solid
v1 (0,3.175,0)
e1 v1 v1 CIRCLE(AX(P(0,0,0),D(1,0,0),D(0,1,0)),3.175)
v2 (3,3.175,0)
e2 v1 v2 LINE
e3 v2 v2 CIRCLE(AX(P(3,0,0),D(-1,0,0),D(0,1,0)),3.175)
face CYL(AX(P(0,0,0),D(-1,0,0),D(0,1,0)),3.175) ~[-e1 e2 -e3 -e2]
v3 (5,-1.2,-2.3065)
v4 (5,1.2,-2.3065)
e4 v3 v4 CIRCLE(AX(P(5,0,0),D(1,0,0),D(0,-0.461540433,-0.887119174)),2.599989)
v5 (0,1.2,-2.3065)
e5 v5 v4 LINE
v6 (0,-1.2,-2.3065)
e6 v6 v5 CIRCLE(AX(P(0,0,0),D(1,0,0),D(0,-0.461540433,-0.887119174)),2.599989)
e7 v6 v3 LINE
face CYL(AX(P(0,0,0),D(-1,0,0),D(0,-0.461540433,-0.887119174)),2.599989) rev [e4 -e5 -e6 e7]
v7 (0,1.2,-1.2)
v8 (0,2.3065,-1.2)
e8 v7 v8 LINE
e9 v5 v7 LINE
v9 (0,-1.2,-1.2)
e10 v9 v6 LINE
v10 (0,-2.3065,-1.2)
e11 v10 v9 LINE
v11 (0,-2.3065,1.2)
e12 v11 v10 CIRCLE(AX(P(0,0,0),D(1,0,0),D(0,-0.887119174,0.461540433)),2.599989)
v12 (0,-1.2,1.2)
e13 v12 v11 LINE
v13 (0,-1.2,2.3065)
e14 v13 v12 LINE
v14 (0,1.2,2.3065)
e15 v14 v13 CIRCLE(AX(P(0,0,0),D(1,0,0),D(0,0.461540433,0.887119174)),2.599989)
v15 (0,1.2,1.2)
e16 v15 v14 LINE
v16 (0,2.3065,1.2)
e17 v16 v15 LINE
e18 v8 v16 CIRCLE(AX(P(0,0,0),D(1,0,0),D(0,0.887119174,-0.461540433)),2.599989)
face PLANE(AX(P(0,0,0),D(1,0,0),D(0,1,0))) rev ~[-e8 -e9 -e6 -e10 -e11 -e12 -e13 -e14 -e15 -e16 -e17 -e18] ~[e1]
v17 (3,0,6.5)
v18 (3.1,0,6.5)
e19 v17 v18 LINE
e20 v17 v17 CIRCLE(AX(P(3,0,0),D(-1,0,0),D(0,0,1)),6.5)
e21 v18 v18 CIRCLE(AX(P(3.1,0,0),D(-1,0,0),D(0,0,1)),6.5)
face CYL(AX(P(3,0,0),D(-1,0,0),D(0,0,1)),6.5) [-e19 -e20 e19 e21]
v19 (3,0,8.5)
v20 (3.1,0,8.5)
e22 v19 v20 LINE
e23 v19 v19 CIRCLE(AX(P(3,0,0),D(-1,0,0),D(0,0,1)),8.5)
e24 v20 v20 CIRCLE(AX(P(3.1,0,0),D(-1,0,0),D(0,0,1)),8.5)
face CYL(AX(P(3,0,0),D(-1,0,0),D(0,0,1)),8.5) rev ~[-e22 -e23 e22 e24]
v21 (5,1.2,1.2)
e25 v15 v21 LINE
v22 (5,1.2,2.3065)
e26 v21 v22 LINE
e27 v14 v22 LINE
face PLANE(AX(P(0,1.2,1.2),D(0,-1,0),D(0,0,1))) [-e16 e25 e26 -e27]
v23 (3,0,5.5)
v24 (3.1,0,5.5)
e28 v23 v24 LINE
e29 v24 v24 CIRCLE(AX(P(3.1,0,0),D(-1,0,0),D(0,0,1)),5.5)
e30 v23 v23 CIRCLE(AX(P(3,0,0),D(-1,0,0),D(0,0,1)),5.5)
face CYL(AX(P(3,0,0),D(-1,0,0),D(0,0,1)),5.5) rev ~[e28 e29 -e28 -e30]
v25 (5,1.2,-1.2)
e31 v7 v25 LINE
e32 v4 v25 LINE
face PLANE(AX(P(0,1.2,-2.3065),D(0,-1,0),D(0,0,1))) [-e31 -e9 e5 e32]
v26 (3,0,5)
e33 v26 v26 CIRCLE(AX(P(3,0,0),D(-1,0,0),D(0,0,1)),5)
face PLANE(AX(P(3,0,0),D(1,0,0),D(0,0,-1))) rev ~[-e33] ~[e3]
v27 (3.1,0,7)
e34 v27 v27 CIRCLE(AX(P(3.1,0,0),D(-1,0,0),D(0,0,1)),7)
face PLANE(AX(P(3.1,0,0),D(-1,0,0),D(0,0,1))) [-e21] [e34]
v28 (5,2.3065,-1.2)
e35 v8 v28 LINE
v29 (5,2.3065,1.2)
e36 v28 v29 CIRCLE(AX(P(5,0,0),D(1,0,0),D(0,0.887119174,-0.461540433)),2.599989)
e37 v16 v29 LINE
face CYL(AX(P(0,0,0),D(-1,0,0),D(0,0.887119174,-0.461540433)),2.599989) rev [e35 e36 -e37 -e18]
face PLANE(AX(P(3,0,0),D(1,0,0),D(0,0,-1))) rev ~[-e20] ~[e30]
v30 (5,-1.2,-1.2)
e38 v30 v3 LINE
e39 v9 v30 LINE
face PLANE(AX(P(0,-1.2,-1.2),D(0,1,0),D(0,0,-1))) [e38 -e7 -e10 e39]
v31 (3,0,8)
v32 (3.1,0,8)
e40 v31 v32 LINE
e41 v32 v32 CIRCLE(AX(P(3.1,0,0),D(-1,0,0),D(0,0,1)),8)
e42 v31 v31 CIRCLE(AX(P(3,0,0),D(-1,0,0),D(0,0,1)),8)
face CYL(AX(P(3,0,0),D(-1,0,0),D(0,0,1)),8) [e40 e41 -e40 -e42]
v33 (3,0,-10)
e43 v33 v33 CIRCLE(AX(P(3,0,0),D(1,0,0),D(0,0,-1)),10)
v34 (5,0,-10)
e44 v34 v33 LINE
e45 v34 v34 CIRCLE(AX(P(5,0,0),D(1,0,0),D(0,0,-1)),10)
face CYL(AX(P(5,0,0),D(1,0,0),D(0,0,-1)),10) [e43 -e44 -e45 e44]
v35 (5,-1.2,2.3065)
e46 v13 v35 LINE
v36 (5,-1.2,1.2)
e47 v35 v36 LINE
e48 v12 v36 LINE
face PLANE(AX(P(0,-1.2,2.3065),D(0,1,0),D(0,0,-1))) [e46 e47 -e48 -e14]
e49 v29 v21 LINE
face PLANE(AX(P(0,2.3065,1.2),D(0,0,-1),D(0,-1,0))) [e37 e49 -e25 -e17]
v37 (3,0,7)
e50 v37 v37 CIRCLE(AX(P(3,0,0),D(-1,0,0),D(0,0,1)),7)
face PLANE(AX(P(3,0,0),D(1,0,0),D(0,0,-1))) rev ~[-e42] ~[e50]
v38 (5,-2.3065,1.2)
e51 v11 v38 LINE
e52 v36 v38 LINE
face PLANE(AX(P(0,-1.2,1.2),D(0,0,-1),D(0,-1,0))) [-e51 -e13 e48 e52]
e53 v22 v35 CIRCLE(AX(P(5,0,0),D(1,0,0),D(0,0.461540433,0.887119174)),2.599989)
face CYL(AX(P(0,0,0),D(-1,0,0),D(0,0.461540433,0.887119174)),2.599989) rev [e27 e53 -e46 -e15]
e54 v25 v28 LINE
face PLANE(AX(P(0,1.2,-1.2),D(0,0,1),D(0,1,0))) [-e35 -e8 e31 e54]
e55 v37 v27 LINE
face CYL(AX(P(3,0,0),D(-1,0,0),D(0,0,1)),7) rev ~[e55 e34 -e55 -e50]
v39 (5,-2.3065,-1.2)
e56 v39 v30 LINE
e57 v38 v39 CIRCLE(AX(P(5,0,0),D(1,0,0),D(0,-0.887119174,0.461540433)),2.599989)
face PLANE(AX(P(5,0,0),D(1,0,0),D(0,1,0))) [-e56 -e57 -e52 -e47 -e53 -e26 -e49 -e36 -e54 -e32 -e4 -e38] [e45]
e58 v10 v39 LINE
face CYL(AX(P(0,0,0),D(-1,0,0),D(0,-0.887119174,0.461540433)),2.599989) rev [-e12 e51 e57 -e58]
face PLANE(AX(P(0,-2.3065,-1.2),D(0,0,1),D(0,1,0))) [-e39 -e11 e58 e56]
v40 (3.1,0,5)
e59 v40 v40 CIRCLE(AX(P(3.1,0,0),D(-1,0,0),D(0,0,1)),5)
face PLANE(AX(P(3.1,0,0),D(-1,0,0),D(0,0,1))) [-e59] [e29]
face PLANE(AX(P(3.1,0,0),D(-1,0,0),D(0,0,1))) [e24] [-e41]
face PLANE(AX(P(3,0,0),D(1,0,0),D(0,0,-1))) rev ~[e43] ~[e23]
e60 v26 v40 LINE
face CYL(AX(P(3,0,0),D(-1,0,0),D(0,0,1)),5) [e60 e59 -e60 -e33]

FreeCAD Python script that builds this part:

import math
import FreeCAD as App
import Part
import Sketcher

doc = App.newDocument("Part")
params = doc.addObject("Spreadsheet::Sheet", "Params")
for row, (alias, value) in enumerate([
    ("sketch1_diameter", "6.35 mm"),
    ("sketch1_radius", "2.6 mm"),
    ("pad1_length", "5 mm"),
    ("sketch2_diameter", "20 mm"),
    ("sketch2_diameter2", "5.2 mm"),
    ("pad2_length", "2 mm"),
    ("sketch3_diameter", "11 mm"),
    ("sketch3_diameter2", "10 mm"),
    ("sketch3_diameter3", "14 mm"),
    ("sketch3_diameter4", "13 mm"),
    ("sketch3_diameter5", "17 mm"),
    ("pocket1_length", "0.1 mm"),
], start=1):
    params.set(f"A{row}", alias)
    params.set(f"B{row}", "=" + value)
    params.setAlias(f"B{row}", alias)

body = doc.addObject("PartDesign::Body", "Body")

# Sketch on YZ plane
sketch1 = body.newObject("Sketcher::SketchObject", "Sketch")
sketch1.AttachmentSupport = (doc.getObject("YZ_Plane"), [""])
sketch1.MapMode = "FlatFace"
sketch1.addGeometry(Part.Circle(App.Vector(0, 0, 0), App.Vector(0, 0, 1), 3.2), False)
sketch1.addGeometry(Part.ArcOfCircle(Part.Circle(App.Vector(0, 0, 0), App.Vector(0, 0, 1), 2.6), math.radians(63), math.radians(117)), False)
sketch1.addGeometry(Part.LineSegment(App.Vector(1.2, 2.3, 0), App.Vector(1.2, 1.2, 0)), False)
sketch1.addGeometry(Part.LineSegment(App.Vector(1.2, 1.2, 0), App.Vector(2.3, 1.2, 0)), False)
sketch1.addGeometry(Part.ArcOfCircle(Part.Circle(App.Vector(0, 0, 0), App.Vector(0, 0, 1), 2.6), math.radians(-27), math.radians(27)), False)
sketch1.addGeometry(Part.LineSegment(App.Vector(2.3, -1.2, 0), App.Vector(1.2, -1.2, 0)), False)
sketch1.addGeometry(Part.LineSegment(App.Vector(1.2, -1.2, 0), App.Vector(1.2, -2.3, 0)), False)
sketch1.addGeometry(Part.ArcOfCircle(Part.Circle(App.Vector(0, 0, 0), App.Vector(0, 0, 1), 2.6), math.radians(-117), math.radians(-63)), False)
sketch1.addGeometry(Part.LineSegment(App.Vector(-1.2, -2.3, 0), App.Vector(-1.2, -1.2, 0)), False)
sketch1.addGeometry(Part.LineSegment(App.Vector(-1.2, -1.2, 0), App.Vector(-2.3, -1.2, 0)), False)
sketch1.addGeometry(Part.ArcOfCircle(Part.Circle(App.Vector(0, 0, 0), App.Vector(0, 0, 1), 2.6), math.radians(153), math.radians(207)), False)
sketch1.addGeometry(Part.LineSegment(App.Vector(-2.3, 1.2, 0), App.Vector(-1.2, 1.2, 0)), False)
sketch1.addGeometry(Part.LineSegment(App.Vector(-1.2, 1.2, 0), App.Vector(-1.2, 2.3, 0)), False)
sketch1.addConstraint(Sketcher.Constraint("Coincident", 1, 1, 2, 1))
sketch1.addConstraint(Sketcher.Constraint("Coincident", 2, 2, 3, 1))
sketch1.addConstraint(Sketcher.Constraint("Coincident", 3, 2, 4, 2))
sketch1.addConstraint(Sketcher.Constraint("Coincident", 4, 1, 5, 1))
sketch1.addConstraint(Sketcher.Constraint("Coincident", 5, 2, 6, 1))
sketch1.addConstraint(Sketcher.Constraint("Coincident", 6, 2, 7, 2))
sketch1.addConstraint(Sketcher.Constraint("Coincident", 7, 1, 8, 1))
sketch1.addConstraint(Sketcher.Constraint("Coincident", 8, 2, 9, 1))
sketch1.addConstraint(Sketcher.Constraint("Coincident", 9, 2, 10, 2))
sketch1.addConstraint(Sketcher.Constraint("Coincident", 10, 1, 11, 1))
sketch1.addConstraint(Sketcher.Constraint("Coincident", 11, 2, 12, 1))
sketch1.addConstraint(Sketcher.Constraint("Coincident", 12, 2, 1, 2))
sketch1.addConstraint(Sketcher.Constraint("Vertical", 2))
sketch1.addConstraint(Sketcher.Constraint("Horizontal", 3))
sketch1.addConstraint(Sketcher.Constraint("Horizontal", 5))
sketch1.addConstraint(Sketcher.Constraint("Vertical", 6))
sketch1.addConstraint(Sketcher.Constraint("Vertical", 8))
sketch1.addConstraint(Sketcher.Constraint("Horizontal", 9))
sketch1.addConstraint(Sketcher.Constraint("Horizontal", 11))
sketch1.addConstraint(Sketcher.Constraint("Vertical", 12))
sketch1.addConstraint(Sketcher.Constraint("Coincident", 0, 3, -1, 1))
sketch1.addConstraint(Sketcher.Constraint("Coincident", 1, 3, -1, 1))
sketch1.addConstraint(Sketcher.Constraint("Coincident", 4, 3, -1, 1))
sketch1.addConstraint(Sketcher.Constraint("Coincident", 7, 3, -1, 1))
sketch1.addConstraint(Sketcher.Constraint("Coincident", 10, 3, -1, 1))
sketch1.addConstraint(Sketcher.Constraint("Equal", 1, 4))
sketch1.addConstraint(Sketcher.Constraint("Equal", 4, 7))
sketch1.addConstraint(Sketcher.Constraint("Equal", 7, 10))
sketch1.addConstraint(Sketcher.Constraint("Symmetric", 2, 2, 8, 2, -1, 1))
sketch1.addConstraint(Sketcher.Constraint("Symmetric", 5, 2, 11, 2, -1, 1))
sketch1.addConstraint(Sketcher.Constraint("Symmetric", 5, 2, 8, 2, -2))
sketch1.addConstraint(Sketcher.Constraint("Equal", 11, 2))
sketch1.addConstraint(Sketcher.Constraint("Diameter", 0, 6.35))
sketch1.addConstraint(Sketcher.Constraint("Radius", 1, 2.6))
sketch1.addConstraint(Sketcher.Constraint("DistanceX", -1, 1, 1, 1, 1.2))
sketch1.setExpression("Constraints[32]", "Params.sketch1_diameter")
sketch1.setExpression("Constraints[33]", "Params.sketch1_radius")
pad1 = body.newObject("PartDesign::Pad", "Pad")
pad1.Profile = sketch1
pad1.setExpression("Length", "Params.pad1_length")

# Sketch on YZ plane
sketch2 = body.newObject("Sketcher::SketchObject", "Sketch001")
sketch2.AttachmentSupport = (doc.getObject("YZ_Plane"), [""])
sketch2.MapMode = "FlatFace"
sketch2.AttachmentOffset = App.Placement(App.Vector(0, 0, 5), App.Rotation())
sketch2.addGeometry(Part.Circle(App.Vector(0, 0, 0), App.Vector(0, 0, 1), 10), False)
sketch2.addGeometry(Part.Circle(App.Vector(0, 0, 0), App.Vector(0, 0, 1), 2.6), False)
sketch2.addConstraint(Sketcher.Constraint("Coincident", 0, 3, -1, 1))
sketch2.addConstraint(Sketcher.Constraint("Coincident", 1, 3, -1, 1))
sketch2.addConstraint(Sketcher.Constraint("Diameter", 0, 20.0))
sketch2.addConstraint(Sketcher.Constraint("Diameter", 1, 5.2))
sketch2.setExpression("Constraints[2]", "Params.sketch2_diameter")
sketch2.setExpression("Constraints[3]", "Params.sketch2_diameter2")
pad2 = body.newObject("PartDesign::Pad", "Pad001")
pad2.Profile = sketch2
pad2.setExpression("Length", "Params.pad2_length")
pad2.Reversed = True

# Sketch on YZ plane
sketch3 = body.newObject("Sketcher::SketchObject", "Sketch002")
sketch3.AttachmentSupport = (doc.getObject("YZ_Plane"), [""])
sketch3.MapMode = "FlatFace"
sketch3.AttachmentOffset = App.Placement(App.Vector(0, 0, 3), App.Rotation())
sketch3.addGeometry(Part.Circle(App.Vector(0, 0, 0), App.Vector(0, 0, 1), 6), False)
sketch3.addGeometry(Part.Circle(App.Vector(0, 0, 0), App.Vector(0, 0, 1), 5), False)
sketch3.addGeometry(Part.Circle(App.Vector(0, 0, 0), App.Vector(0, 0, 1), 7), False)
sketch3.addGeometry(Part.Circle(App.Vector(0, 0, 0), App.Vector(0, 0, 1), 6), False)
sketch3.addGeometry(Part.Circle(App.Vector(0, 0, 0), App.Vector(0, 0, 1), 8), False)
sketch3.addGeometry(Part.Circle(App.Vector(0, 0, 0), App.Vector(0, 0, 1), 8), False)
sketch3.addConstraint(Sketcher.Constraint("Coincident", 0, 3, -1, 1))
sketch3.addConstraint(Sketcher.Constraint("Coincident", 1, 3, -1, 1))
sketch3.addConstraint(Sketcher.Constraint("Coincident", 2, 3, -1, 1))
sketch3.addConstraint(Sketcher.Constraint("Coincident", 3, 3, -1, 1))
sketch3.addConstraint(Sketcher.Constraint("Coincident", 4, 3, -1, 1))
sketch3.addConstraint(Sketcher.Constraint("Coincident", 5, 3, -1, 1))
sketch3.addConstraint(Sketcher.Constraint("Diameter", 0, 11.0))
sketch3.addConstraint(Sketcher.Constraint("Diameter", 1, 10.0))
sketch3.addConstraint(Sketcher.Constraint("Diameter", 2, 14.0))
sketch3.addConstraint(Sketcher.Constraint("Diameter", 3, 13.0))
sketch3.addConstraint(Sketcher.Constraint("Diameter", 4, 17.0))
sketch3.addConstraint(Sketcher.Constraint("Diameter", 5, 16.0))
sketch3.setExpression("Constraints[6]", "Params.sketch3_diameter")
sketch3.setExpression("Constraints[7]", "Params.sketch3_diameter2")
sketch3.setExpression("Constraints[8]", "Params.sketch3_diameter3")
sketch3.setExpression("Constraints[9]", "Params.sketch3_diameter4")
sketch3.setExpression("Constraints[10]", "Params.sketch3_diameter5")
pocket1 = body.newObject("PartDesign::Pocket", "Pocket")
pocket1.Profile = sketch3
pocket1.setExpression("Length", "Params.pocket1_length")
pocket1.Reversed = True

doc.recompute()
